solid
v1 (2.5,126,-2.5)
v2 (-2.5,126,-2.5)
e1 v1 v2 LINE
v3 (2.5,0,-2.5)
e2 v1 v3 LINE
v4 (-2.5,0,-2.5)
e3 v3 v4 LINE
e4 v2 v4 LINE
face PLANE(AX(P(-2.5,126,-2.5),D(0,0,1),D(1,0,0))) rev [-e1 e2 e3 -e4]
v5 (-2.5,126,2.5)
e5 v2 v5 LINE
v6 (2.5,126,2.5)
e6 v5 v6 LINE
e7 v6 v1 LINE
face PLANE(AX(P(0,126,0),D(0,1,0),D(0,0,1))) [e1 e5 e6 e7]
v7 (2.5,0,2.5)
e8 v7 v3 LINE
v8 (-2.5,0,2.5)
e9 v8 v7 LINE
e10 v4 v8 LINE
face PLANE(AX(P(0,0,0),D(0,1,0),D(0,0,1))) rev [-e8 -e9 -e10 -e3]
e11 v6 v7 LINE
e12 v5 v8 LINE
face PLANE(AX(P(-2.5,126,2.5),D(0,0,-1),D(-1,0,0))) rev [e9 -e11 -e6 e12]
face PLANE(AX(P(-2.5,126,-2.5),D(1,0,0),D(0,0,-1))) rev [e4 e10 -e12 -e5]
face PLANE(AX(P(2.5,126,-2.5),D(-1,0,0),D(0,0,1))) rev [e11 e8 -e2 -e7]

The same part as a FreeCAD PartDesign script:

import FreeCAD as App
import Part
import Sketcher

V = App.Vector
Q = App.Units.Quantity

doc = App.newDocument("Part")
body = doc.addObject("PartDesign::Body", "Body")

# Sketch on XZ plane
sketch1 = doc.addObject("Sketcher::SketchObject", "Sketch")
body.addObject(sketch1)
sketch1.AttachmentSupport = (doc.XZ_Plane, [""])
sketch1.MapMode = "FlatFace"
sketch1.addGeometry([
    Part.LineSegment(V(-2, -2, 0), V(-2, 2, 0)),
    Part.LineSegment(V(-2, 2, 0), V(2, 2, 0)),
    Part.LineSegment(V(2, 2, 0), V(2, -2, 0)),
    Part.LineSegment(V(2, -2, 0), V(-2, -2, 0)),
], False)
sketch1.addConstraint([
    Sketcher.Constraint("Coincident", 0, 2, 1, 1),
    Sketcher.Constraint("Coincident", 1, 2, 2, 1),
    Sketcher.Constraint("Coincident", 2, 2, 3, 1),
    Sketcher.Constraint("Coincident", 3, 2, 0, 1),
    Sketcher.Constraint("Vertical", 0),
    Sketcher.Constraint("Horizontal", 1),
    Sketcher.Constraint("Vertical", 2),
    Sketcher.Constraint("Horizontal", 3),
    Sketcher.Constraint("Symmetric", 0, 2, 2, 2, -1, 1),
    Sketcher.Constraint("Equal", 3, 0),
    Sketcher.Constraint("DistanceX", 1, 1, 1, 2, Q("5 mm")),
])
pad1 = doc.addObject("PartDesign::Pad", "Pad")
body.addObject(pad1)
pad1.Profile = sketch1
pad1.Length = 126
pad1.Reversed = True

doc.recompute()
